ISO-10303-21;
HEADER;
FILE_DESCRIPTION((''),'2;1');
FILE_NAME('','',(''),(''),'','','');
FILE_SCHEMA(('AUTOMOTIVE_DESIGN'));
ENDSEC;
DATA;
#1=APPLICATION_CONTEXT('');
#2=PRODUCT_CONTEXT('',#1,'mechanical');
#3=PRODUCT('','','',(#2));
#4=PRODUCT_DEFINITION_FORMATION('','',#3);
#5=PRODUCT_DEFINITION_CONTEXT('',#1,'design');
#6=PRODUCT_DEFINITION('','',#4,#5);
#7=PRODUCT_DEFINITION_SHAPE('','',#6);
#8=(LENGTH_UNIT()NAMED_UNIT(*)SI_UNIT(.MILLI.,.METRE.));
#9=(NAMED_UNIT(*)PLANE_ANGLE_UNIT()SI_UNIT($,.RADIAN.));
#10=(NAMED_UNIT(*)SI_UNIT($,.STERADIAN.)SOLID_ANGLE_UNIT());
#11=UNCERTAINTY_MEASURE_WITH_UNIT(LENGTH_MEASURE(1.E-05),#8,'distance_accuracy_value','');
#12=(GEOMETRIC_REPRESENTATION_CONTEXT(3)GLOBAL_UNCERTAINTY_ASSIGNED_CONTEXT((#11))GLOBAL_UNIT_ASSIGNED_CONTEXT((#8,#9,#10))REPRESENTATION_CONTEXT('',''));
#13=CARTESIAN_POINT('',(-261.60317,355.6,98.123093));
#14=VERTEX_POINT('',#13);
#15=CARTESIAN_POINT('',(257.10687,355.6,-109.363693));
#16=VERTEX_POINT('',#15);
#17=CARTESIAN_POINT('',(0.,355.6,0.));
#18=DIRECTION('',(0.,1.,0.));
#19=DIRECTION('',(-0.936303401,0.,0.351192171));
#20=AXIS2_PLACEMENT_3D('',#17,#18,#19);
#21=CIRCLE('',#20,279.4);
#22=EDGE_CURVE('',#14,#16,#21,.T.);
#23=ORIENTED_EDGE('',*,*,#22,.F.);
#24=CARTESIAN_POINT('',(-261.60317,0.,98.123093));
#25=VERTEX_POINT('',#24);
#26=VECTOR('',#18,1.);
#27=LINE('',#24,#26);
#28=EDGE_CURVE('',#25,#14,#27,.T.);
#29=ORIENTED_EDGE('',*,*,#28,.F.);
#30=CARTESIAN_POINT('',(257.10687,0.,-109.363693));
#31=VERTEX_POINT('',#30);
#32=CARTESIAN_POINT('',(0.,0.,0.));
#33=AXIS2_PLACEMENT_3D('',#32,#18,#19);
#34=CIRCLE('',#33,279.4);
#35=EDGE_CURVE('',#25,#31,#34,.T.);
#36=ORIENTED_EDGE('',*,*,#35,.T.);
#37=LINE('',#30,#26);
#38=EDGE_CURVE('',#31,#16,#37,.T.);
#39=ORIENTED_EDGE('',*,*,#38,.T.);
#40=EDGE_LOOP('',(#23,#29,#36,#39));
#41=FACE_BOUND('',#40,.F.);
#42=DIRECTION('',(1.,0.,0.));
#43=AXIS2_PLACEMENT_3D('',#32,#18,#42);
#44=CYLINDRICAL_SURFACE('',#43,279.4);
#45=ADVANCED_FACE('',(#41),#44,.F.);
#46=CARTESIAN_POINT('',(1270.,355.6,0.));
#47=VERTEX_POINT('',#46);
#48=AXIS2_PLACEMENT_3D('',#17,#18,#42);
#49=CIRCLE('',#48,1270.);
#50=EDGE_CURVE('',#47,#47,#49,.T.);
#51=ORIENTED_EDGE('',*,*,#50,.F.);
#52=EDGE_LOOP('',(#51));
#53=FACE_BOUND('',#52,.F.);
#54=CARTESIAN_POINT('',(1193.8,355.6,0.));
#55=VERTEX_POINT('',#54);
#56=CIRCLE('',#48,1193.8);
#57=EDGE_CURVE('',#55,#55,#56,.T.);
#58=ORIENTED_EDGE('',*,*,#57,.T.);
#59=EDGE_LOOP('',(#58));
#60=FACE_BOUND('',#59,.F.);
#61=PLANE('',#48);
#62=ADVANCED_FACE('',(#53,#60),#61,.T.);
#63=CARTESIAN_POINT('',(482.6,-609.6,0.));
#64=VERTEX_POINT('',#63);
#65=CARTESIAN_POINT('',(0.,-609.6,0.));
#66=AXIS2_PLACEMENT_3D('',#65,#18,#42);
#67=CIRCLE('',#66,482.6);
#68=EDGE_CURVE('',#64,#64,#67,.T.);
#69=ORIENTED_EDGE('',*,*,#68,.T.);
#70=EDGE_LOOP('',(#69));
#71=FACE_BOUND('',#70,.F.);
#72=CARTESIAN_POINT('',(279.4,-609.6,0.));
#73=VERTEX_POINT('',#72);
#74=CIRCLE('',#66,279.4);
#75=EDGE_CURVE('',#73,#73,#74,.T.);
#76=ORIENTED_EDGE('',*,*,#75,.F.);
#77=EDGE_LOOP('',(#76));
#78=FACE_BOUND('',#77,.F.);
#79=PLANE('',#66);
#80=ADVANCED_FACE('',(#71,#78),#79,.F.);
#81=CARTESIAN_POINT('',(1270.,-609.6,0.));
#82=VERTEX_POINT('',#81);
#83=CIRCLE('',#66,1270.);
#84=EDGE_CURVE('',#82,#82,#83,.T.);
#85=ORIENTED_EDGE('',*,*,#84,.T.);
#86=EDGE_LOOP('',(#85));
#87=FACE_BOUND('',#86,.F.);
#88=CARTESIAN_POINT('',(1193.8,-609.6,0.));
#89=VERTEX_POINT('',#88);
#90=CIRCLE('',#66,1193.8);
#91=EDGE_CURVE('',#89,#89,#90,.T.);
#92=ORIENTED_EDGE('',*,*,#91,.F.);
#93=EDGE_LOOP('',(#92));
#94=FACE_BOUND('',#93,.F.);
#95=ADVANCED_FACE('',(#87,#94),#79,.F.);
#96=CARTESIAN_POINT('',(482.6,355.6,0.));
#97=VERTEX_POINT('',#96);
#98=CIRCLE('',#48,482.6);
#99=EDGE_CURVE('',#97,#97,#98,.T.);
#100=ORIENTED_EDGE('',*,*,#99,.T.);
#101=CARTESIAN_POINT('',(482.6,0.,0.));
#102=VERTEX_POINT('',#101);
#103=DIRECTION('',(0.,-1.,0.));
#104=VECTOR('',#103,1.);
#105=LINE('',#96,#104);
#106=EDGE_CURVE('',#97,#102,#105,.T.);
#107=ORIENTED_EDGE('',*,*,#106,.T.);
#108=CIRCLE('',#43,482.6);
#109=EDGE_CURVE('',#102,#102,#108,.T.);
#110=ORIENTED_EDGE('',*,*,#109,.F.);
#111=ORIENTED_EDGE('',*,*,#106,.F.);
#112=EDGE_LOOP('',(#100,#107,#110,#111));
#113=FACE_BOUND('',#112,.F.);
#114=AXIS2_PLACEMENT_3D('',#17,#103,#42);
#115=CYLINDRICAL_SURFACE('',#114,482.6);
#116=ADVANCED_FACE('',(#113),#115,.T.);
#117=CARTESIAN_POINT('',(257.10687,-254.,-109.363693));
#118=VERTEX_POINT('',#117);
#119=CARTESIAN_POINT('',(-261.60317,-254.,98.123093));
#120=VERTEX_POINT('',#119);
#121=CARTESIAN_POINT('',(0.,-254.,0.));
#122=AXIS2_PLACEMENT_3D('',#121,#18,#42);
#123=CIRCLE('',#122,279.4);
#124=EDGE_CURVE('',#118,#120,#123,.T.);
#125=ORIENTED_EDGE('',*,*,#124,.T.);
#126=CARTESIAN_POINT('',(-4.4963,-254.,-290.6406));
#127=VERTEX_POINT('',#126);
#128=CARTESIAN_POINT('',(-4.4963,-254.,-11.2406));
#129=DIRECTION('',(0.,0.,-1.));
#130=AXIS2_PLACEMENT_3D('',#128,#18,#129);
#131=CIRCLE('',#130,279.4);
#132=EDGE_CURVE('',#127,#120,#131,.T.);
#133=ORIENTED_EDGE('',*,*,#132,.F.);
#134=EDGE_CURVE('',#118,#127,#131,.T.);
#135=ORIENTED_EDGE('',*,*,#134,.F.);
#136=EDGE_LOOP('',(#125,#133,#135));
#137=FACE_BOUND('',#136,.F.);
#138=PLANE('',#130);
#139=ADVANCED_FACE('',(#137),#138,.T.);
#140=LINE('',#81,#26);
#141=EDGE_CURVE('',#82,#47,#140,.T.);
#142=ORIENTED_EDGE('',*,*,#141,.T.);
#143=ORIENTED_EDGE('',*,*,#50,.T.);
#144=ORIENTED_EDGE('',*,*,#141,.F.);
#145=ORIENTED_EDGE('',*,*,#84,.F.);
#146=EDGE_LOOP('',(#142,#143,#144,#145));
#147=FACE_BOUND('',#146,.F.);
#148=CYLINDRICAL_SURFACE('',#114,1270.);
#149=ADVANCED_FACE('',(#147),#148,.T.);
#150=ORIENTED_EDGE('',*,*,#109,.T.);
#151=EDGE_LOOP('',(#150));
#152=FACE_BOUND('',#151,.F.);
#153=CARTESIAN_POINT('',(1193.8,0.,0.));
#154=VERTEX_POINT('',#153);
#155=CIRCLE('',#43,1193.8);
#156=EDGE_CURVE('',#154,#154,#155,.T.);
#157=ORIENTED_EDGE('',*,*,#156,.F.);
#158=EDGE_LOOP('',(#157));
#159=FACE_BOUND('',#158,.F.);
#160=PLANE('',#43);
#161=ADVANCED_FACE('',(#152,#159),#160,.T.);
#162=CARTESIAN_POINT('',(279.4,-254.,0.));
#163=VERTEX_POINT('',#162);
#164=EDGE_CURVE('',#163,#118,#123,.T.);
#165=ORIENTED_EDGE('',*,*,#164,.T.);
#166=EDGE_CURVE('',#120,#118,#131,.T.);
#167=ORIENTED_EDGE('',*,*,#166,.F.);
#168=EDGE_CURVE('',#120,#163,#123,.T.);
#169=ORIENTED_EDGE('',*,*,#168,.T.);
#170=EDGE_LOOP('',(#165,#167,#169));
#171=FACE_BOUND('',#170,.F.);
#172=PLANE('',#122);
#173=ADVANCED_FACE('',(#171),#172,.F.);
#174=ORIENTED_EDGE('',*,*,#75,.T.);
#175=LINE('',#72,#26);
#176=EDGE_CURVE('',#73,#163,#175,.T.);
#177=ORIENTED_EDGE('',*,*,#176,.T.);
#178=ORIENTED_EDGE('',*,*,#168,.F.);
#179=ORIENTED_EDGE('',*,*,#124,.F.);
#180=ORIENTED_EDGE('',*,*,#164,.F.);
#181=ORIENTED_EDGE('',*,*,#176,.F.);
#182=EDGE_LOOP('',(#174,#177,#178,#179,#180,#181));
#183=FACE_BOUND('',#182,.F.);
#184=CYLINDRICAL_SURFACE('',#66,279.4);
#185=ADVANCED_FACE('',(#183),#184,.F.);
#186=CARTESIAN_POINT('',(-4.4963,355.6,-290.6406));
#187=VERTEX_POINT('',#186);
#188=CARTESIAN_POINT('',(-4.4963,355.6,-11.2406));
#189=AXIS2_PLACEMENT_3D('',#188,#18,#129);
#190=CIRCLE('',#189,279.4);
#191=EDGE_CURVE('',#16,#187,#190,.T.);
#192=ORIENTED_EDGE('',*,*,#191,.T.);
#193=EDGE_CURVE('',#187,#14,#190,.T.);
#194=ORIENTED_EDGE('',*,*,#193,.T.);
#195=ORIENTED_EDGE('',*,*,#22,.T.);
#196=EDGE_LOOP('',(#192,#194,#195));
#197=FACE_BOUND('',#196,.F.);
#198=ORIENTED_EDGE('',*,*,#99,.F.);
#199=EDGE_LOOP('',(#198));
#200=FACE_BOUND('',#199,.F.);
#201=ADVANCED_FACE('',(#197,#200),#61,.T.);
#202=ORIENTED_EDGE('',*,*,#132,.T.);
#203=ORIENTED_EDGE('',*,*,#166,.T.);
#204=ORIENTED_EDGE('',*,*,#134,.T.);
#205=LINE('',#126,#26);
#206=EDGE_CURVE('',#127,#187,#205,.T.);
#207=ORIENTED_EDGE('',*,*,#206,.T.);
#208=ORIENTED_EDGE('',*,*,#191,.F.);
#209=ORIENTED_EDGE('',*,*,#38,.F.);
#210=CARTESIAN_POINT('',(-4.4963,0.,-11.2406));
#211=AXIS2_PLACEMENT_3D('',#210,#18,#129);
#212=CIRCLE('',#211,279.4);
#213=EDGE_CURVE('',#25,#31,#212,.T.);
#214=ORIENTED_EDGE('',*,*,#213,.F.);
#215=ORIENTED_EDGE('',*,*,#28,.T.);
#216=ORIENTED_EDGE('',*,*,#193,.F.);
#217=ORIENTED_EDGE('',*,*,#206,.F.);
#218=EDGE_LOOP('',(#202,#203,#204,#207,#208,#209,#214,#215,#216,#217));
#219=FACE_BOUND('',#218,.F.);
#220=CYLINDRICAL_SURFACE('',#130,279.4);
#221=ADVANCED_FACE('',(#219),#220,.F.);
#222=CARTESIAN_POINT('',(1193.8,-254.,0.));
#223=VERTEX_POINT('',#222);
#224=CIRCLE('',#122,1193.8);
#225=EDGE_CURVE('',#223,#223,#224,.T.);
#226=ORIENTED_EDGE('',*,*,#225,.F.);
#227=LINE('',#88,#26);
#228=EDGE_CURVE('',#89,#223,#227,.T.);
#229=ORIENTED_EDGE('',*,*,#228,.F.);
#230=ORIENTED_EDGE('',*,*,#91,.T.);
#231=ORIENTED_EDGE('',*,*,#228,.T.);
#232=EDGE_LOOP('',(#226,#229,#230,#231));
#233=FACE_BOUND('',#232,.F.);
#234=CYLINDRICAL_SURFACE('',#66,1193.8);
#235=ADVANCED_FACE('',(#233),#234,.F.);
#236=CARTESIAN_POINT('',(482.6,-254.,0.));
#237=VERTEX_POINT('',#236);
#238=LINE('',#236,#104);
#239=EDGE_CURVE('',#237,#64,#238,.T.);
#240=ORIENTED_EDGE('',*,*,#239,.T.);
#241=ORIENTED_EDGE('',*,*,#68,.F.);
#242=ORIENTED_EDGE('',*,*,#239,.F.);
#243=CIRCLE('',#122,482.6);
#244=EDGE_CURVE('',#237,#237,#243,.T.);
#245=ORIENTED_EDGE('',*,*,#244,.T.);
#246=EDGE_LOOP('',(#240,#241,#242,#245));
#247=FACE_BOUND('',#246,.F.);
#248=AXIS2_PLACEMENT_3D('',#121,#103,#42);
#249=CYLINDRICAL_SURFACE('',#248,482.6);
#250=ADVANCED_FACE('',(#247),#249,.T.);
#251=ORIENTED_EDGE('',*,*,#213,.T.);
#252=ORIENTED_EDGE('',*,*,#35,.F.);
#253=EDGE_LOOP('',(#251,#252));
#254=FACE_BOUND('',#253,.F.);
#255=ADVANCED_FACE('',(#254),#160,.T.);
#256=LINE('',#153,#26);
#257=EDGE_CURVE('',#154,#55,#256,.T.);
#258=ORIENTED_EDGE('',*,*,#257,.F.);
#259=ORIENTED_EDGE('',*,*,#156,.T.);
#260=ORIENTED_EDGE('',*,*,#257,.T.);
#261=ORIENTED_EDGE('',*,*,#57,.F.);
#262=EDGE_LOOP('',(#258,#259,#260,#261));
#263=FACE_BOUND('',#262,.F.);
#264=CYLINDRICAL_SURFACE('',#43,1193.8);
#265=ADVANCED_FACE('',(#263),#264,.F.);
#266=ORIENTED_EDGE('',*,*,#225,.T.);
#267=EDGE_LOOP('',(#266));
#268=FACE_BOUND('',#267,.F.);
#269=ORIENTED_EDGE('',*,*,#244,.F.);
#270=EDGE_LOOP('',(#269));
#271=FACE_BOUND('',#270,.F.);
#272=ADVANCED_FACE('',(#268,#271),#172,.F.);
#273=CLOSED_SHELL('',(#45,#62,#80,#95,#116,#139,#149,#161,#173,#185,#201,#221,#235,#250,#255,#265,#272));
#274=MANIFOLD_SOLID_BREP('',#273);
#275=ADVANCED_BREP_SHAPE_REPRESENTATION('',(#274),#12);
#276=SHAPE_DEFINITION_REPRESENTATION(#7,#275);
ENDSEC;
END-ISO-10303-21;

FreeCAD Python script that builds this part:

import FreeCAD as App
import Part
import Sketcher

V = App.Vector
Q = App.Units.Quantity

doc = App.newDocument("Part")
params = doc.addObject("Spreadsheet::Sheet", "Params")
for row, (alias, value) in enumerate([
    ("sketch1_width", "11 in"),
    ("sketch1_width2", "8 in"),
    ("sketch1_width3", "28 in"),
    ("sketch1_width4", "3 in"),
    ("sketch1_height", "14 in"),
    ("revolution_angle", "360 deg"),
    ("sketch2_diameter", "22 in"),
    ("hole_diameter", "22 in"),
], start=1):
    params.set(f"A{row}", alias)
    params.set(f"B{row}", "=" + value)
    params.setAlias(f"B{row}", alias)

body = doc.addObject("PartDesign::Body", "Body")

# Sketch on XY plane
sketch1 = body.newObject("Sketcher::SketchObject", "Sketch")
sketch1.AttachmentSupport = (doc.getObject("XY_Plane"), [""])
sketch1.MapMode = "FlatFace"
sketch1.addGeometry([
    Part.LineSegment(V(279, 0, 0), V(0, 0, 0)),  # 0
    Part.LineSegment(V(0, 0, 0), V(0, -254, 0)),  # 1
    Part.LineSegment(V(0, -254, 0), V(279, -254, 0)),  # 2
    Part.LineSegment(V(279, -254, 0), V(279, -610, 0)),  # 3
    Part.LineSegment(V(279, -610, 0), V(483, -610, 0)),  # 4
    Part.LineSegment(V(483, -610, 0), V(483, -254, 0)),  # 5
    Part.LineSegment(V(483, -254, 0), V(1194, -254, 0)),  # 6
    Part.LineSegment(V(1194, -254, 0), V(1194, -610, 0)),  # 7
    Part.LineSegment(V(1194, -610, 0), V(1270, -610, 0)),  # 8
    Part.LineSegment(V(1270, -610, 0), V(1270, 356, 0)),  # 9
    Part.LineSegment(V(1270, 356, 0), V(1194, 356, 0)),  # 10
    Part.LineSegment(V(1194, 356, 0), V(1194, 0, 0)),  # 11
    Part.LineSegment(V(1194, 0, 0), V(483, 0, 0)),  # 12
    Part.LineSegment(V(483, 0, 0), V(483, 356, 0)),  # 13
    Part.LineSegment(V(483, 356, 0), V(279, 356, 0)),  # 14
    Part.LineSegment(V(279, 356, 0), V(279, 0, 0)),  # 15
], False)
sketch1.addConstraint([
    Sketcher.Constraint("Coincident", 0, 2, 1, 1),
    Sketcher.Constraint("Coincident", 1, 2, 2, 1),
    Sketcher.Constraint("Coincident", 2, 2, 3, 1),
    Sketcher.Constraint("Coincident", 3, 2, 4, 1),
    Sketcher.Constraint("Coincident", 4, 2, 5, 1),
    Sketcher.Constraint("Coincident", 5, 2, 6, 1),
    Sketcher.Constraint("Coincident", 6, 2, 7, 1),
    Sketcher.Constraint("Coincident", 7, 2, 8, 1),
    Sketcher.Constraint("Coincident", 8, 2, 9, 1),
    Sketcher.Constraint("Coincident", 9, 2, 10, 1),
    Sketcher.Constraint("Coincident", 10, 2, 11, 1),
    Sketcher.Constraint("Coincident", 11, 2, 12, 1),
    Sketcher.Constraint("Coincident", 12, 2, 13, 1),
    Sketcher.Constraint("Coincident", 13, 2, 14, 1),
    Sketcher.Constraint("Coincident", 14, 2, 15, 1),
    Sketcher.Constraint("Coincident", 15, 2, 0, 1),
    Sketcher.Constraint("Horizontal", 0),
    Sketcher.Constraint("Vertical", 1),
    Sketcher.Constraint("Horizontal", 2),
    Sketcher.Constraint("Vertical", 3),
    Sketcher.Constraint("Horizontal", 4),
    Sketcher.Constraint("Vertical", 5),
    Sketcher.Constraint("Horizontal", 6),
    Sketcher.Constraint("Vertical", 7),
    Sketcher.Constraint("Horizontal", 8),
    Sketcher.Constraint("Vertical", 9),
    Sketcher.Constraint("Horizontal", 10),
    Sketcher.Constraint("Vertical", 11),
    Sketcher.Constraint("Horizontal", 12),
    Sketcher.Constraint("Vertical", 13),
    Sketcher.Constraint("Horizontal", 14),
    Sketcher.Constraint("Vertical", 15),
    Sketcher.Constraint("Coincident", 0, 2, -1, 1),
    Sketcher.Constraint("PointOnObject", 11, 2, -1),
    Sketcher.Constraint("Horizontal", 2, 2, 5, 2),
    Sketcher.Constraint("Horizontal", 4, 2, 7, 2),
    Sketcher.Constraint("Horizontal", 10, 2, 13, 2),
    Sketcher.Constraint("Vertical", 7, 2, 10, 2),
    Sketcher.Constraint("Vertical", 5, 2, 12, 2),
    Sketcher.Constraint("Vertical", 3, 2, 14, 2),
    Sketcher.Constraint("Equal", 7, 11),
    Sketcher.Constraint("DistanceX", 0, 2, 0, 1, Q("11 in")),
    Sketcher.Constraint("DistanceX", 4, 1, 4, 2, Q("8 in")),
    Sketcher.Constraint("DistanceX", 6, 1, 6, 2, Q("28 in")),
    Sketcher.Constraint("DistanceX", 8, 1, 8, 2, Q("3 in")),
    Sketcher.Constraint("DistanceY", 3, 2, 3, 1, Q("14 in")),
    Sketcher.Constraint("DistanceY", 3, 2, -1, 1, Q("24 in")),
])
sketch1.setExpression("Constraints[41]", "Params.sketch1_width")
sketch1.setExpression("Constraints[42]", "Params.sketch1_width2")
sketch1.setExpression("Constraints[43]", "Params.sketch1_width3")
sketch1.setExpression("Constraints[44]", "Params.sketch1_width4")
sketch1.setExpression("Constraints[45]", "Params.sketch1_height")
revolution = body.newObject("PartDesign::Revolution", "Revolution")
revolution.Profile = sketch1
revolution.ReferenceAxis = (sketch1, ["V_Axis"])
revolution.setExpression("Angle", "Params.revolution_angle")

# Sketch on XZ plane
sketch2 = body.newObject("Sketcher::SketchObject", "Sketch001")
sketch2.AttachmentSupport = (doc.getObject("XZ_Plane"), [""])
sketch2.MapMode = "FlatFace"
sketch2.AttachmentOffset = App.Placement(V(0, 0, 10 * 25.4), App.Rotation())
sketch2.addGeometry(Part.Circle(V(-4, -11, 0), V(0, 0, 1), 279), False)
sketch2.addConstraint([
    Sketcher.Constraint("Diameter", 0, Q("22 in")),
    Sketcher.Constraint("DistanceX", 0, 3, -1, 1, 4.4963),
    Sketcher.Constraint("DistanceY", 0, 3, -1, 1, 11.2406),
])
sketch2.setExpression("Constraints[0]", "Params.sketch2_diameter")
doc.recompute()
hole = body.newObject("PartDesign::Hole", "Hole")
hole.Profile = sketch2
hole.ThreadType = "None"
hole.setExpression("Diameter", "Params.hole_diameter")
hole.DepthType = "ThroughAll"

doc.recompute()
